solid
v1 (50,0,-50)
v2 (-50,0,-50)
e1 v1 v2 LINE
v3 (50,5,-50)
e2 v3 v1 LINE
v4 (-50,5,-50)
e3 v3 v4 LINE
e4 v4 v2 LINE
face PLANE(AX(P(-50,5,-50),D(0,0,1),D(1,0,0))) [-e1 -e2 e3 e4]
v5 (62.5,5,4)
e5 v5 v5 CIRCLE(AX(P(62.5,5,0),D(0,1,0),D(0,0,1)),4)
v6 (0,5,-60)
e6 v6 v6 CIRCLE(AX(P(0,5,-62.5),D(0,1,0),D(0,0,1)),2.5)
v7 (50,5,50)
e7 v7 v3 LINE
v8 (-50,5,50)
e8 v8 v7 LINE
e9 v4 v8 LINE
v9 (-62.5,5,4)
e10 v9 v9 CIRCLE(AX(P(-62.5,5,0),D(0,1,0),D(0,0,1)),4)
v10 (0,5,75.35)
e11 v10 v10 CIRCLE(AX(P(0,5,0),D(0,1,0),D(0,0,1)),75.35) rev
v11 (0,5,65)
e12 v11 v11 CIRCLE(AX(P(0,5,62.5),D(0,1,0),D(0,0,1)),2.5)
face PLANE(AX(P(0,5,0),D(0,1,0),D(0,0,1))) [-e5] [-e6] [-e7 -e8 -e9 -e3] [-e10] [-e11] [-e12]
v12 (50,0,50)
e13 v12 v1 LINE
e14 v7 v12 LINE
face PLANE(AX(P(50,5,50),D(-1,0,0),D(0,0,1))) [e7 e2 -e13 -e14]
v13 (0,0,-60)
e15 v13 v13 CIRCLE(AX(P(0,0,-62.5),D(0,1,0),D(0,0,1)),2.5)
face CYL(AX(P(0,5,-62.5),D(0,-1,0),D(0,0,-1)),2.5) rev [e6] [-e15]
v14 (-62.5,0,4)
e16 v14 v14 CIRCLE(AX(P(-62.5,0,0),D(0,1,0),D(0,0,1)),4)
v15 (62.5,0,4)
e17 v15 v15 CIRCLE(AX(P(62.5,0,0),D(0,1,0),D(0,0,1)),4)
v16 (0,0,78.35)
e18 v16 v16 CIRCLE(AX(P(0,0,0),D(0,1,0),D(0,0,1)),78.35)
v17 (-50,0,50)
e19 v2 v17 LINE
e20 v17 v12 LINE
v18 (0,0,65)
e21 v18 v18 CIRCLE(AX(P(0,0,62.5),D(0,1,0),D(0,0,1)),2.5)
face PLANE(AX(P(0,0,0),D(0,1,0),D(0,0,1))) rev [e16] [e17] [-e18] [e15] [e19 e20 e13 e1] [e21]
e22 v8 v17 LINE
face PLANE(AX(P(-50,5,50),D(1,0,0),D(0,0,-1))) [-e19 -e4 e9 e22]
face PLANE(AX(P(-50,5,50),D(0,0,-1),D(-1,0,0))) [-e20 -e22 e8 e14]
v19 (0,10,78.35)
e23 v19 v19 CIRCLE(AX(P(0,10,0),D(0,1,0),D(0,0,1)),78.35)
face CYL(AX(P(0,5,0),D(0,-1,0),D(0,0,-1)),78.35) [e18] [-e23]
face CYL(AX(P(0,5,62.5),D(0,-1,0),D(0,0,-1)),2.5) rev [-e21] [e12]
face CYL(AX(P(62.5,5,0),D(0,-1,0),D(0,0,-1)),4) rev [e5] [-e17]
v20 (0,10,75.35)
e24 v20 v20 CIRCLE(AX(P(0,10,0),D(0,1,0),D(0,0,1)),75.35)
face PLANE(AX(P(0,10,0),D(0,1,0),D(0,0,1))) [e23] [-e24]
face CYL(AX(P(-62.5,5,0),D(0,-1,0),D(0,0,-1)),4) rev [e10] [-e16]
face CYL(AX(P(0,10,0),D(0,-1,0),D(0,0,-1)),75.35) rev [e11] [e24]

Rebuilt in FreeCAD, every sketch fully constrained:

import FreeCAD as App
import Part
import Sketcher
from FreeCAD import Vector
Q = App.Units.Quantity

doc = App.newDocument("Part")
body = doc.addObject("PartDesign::Body", "Body")

# Sketch on XZ plane
sketch1 = doc.addObject("Sketcher::SketchObject", "Sketch")
body.addObject(sketch1)
sketch1.AttachmentSupport = (doc.XZ_Plane, [""])
sketch1.MapMode = "FlatFace"
sketch1.addGeometry([
    Part.Circle(Vector(0, 0, 0), Vector(0, 0, 1), 78.3),  # 0
    Part.Circle(Vector(0, -62.5, 0), Vector(0, 0, 1), 2.5),  # 1
    Part.Circle(Vector(-62.5, 0, 0), Vector(0, 0, 1), 4),  # 2
    Part.Circle(Vector(62.5, 0, 0), Vector(0, 0, 1), 4),  # 3
    Part.LineSegment(Vector(50, 50, 0), Vector(-50, 50, 0)),  # 4
    Part.LineSegment(Vector(-50, 50, 0), Vector(-50, -50, 0)),  # 5
    Part.LineSegment(Vector(-50, -50, 0), Vector(50, -50, 0)),  # 6
    Part.LineSegment(Vector(50, -50, 0), Vector(50, 50, 0)),  # 7
    Part.Circle(Vector(0, 62.5, 0), Vector(0, 0, 1), 2.5),  # 8
], False)
sketch1.addConstraint([
    Sketcher.Constraint("Coincident", 4, 2, 5, 1),
    Sketcher.Constraint("Coincident", 5, 2, 6, 1),
    Sketcher.Constraint("Coincident", 6, 2, 7, 1),
    Sketcher.Constraint("Coincident", 7, 2, 4, 1),
    Sketcher.Constraint("Horizontal", 4),
    Sketcher.Constraint("Vertical", 5),
    Sketcher.Constraint("Horizontal", 6),
    Sketcher.Constraint("Vertical", 7),
    Sketcher.Constraint("Coincident", 0, 3, -1, 1),
    Sketcher.Constraint("Equal", 2, 3),
    Sketcher.Constraint("Equal", 1, 8),
    Sketcher.Constraint("Symmetric", 2, 3, 3, 3, -1, 1),
    Sketcher.Constraint("Symmetric", 1, 3, 8, 3, -1, 1),
    Sketcher.Constraint("Symmetric", 4, 2, 6, 2, -1, 1),
    Sketcher.Constraint("PointOnObject", 1, 3, -2),
    Sketcher.Constraint("PointOnObject", 2, 3, -1),
    Sketcher.Constraint("Equal", 6, 5),
    Sketcher.Constraint("Diameter", 1, Q("5 mm")),
    Sketcher.Constraint("Diameter", 2, Q("8 mm")),
    Sketcher.Constraint("Diameter", 0, Q("156.7 mm")),
    Sketcher.Constraint("DistanceX", 4, 2, 4, 1, Q("100 mm")),
    Sketcher.Constraint("DistanceX", 2, 3, 3, 3, Q("125 mm")),
    Sketcher.Constraint("DistanceY", 1, 3, 8, 3, Q("125 mm")),
])
pad1 = doc.addObject("PartDesign::Pad", "Pad")
body.addObject(pad1)
pad1.Profile = sketch1
pad1.Length = 5
pad1.Reversed = True

# Sketch on XZ plane
sketch2 = doc.addObject("Sketcher::SketchObject", "Sketch001")
body.addObject(sketch2)
sketch2.AttachmentSupport = (doc.XZ_Plane, [""])
sketch2.MapMode = "FlatFace"
sketch2.AttachmentOffset = App.Placement(Vector(0, 0, -5), App.Rotation())
sketch2.addGeometry([
    Part.Circle(Vector(0, 0, 0), Vector(0, 0, 1), 78),
    Part.Circle(Vector(0, 0, 0), Vector(0, 0, 1), 75),
], False)
sketch2.addConstraint([
    Sketcher.Constraint("Coincident", 0, 3, -1, 1),
    Sketcher.Constraint("Coincident", 1, 3, -1, 1),
    Sketcher.Constraint("Diameter", 0, Q("156.7 mm")),
    Sketcher.Constraint("Diameter", 1, Q("150.7 mm")),
])
pad2 = doc.addObject("PartDesign::Pad", "Pad001")
body.addObject(pad2)
pad2.Profile = sketch2
pad2.Length = 5
pad2.Reversed = True

doc.recompute()
